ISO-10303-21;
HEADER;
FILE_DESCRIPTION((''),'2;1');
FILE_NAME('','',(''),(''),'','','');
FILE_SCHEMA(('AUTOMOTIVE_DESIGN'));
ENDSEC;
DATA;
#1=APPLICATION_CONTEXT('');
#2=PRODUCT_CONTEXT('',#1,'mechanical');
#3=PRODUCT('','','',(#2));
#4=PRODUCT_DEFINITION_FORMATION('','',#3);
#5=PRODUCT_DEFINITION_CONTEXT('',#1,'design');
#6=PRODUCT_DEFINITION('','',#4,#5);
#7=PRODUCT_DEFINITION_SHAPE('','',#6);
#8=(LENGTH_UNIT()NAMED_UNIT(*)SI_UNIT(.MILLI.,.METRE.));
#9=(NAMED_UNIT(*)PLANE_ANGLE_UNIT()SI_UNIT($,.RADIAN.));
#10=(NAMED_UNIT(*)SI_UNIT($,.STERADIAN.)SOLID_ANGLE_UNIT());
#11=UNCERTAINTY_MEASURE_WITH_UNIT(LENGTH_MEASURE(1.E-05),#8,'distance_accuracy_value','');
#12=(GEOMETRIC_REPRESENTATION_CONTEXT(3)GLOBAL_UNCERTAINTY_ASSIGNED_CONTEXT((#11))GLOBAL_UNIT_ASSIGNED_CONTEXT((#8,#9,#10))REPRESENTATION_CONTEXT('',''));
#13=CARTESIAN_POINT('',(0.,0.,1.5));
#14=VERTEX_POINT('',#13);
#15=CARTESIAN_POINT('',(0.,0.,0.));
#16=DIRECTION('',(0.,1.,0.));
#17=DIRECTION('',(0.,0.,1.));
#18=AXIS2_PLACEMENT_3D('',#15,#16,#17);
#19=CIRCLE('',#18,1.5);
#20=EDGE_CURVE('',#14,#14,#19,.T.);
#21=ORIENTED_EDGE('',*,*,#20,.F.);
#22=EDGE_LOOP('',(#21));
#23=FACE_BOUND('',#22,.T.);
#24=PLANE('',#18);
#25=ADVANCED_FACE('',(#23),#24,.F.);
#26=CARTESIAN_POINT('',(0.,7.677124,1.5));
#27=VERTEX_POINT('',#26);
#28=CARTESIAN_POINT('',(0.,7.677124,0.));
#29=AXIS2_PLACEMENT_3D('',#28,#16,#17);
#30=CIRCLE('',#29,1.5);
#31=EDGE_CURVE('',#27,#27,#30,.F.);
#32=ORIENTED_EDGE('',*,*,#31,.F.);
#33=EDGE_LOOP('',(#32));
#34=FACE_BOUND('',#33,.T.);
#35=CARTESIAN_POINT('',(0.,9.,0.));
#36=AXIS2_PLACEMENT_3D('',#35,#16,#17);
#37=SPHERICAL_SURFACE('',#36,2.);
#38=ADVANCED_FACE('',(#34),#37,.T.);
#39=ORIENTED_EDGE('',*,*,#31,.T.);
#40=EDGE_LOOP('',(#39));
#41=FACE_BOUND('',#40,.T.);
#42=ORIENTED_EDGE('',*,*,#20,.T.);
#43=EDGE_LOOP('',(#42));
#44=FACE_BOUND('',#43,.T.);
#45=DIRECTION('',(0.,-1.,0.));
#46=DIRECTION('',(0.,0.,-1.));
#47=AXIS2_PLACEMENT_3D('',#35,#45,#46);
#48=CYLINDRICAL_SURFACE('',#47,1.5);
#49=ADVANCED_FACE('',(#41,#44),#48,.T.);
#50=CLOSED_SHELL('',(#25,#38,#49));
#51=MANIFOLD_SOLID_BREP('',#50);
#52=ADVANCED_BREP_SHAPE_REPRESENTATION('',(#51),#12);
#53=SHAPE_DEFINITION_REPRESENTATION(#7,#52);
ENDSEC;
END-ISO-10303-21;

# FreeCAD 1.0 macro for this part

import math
import FreeCAD as App
import Part
import Sketcher

V = App.Vector
Q = App.Units.Quantity

doc = App.newDocument("Part")
body = doc.addObject("PartDesign::Body", "Body")

# Sketch on XZ plane
sketch1 = doc.addObject("Sketcher::SketchObject", "Sketch")
body.addObject(sketch1)
sketch1.AttachmentSupport = (doc.XZ_Plane, [""])
sketch1.MapMode = "FlatFace"
sketch1.addGeometry(Part.Circle(V(0, 0, 0), V(0, 0, 1), 1.5), False)
sketch1.addConstraint(Sketcher.Constraint("Coincident", 0, 3, -1, 1))
sketch1.addConstraint(Sketcher.Constraint("Diameter", 0, Q("3 mm")))
pad1 = doc.addObject("PartDesign::Pad", "Pad")
body.addObject(pad1)
pad1.Profile = sketch1
pad1.Length = 9
pad1.Reversed = True

# Sketch on XZ plane
sketch2 = doc.addObject("Sketcher::SketchObject", "Sketch001")
body.addObject(sketch2)
sketch2.AttachmentSupport = (doc.XZ_Plane, [""])
sketch2.MapMode = "FlatFace"
sketch2.AttachmentOffset = App.Placement(V(0, 0, -9), App.Rotation())
sketch2.addGeometry(Part.LineSegment(V(-2, 0, 0), V(2, 0, 0)), False)
sketch2.addGeometry(Part.ArcOfCircle(Part.Circle(V(0, 0, 0), V(0, 0, 1), 2), math.radians(180), math.radians(360)), False)
sketch2.addConstraint(Sketcher.Constraint("Coincident", 0, 1, 1, 1))
sketch2.addConstraint(Sketcher.Constraint("Coincident", 1, 2, 0, 2))
sketch2.addConstraint(Sketcher.Constraint("Horizontal", 0))
sketch2.addConstraint(Sketcher.Constraint("Coincident", 1, 3, -1, 1))
sketch2.addConstraint(Sketcher.Constraint("PointOnObject", 0, 1, -1))
sketch2.addConstraint(Sketcher.Constraint("Radius", 1, Q("2 mm")))
revolution = doc.addObject("PartDesign::Revolution", "Revolution")
body.addObject(revolution)
revolution.Profile = sketch2
revolution.ReferenceAxis = (sketch2, ["H_Axis"])
revolution.Angle = 360

doc.recompute()
